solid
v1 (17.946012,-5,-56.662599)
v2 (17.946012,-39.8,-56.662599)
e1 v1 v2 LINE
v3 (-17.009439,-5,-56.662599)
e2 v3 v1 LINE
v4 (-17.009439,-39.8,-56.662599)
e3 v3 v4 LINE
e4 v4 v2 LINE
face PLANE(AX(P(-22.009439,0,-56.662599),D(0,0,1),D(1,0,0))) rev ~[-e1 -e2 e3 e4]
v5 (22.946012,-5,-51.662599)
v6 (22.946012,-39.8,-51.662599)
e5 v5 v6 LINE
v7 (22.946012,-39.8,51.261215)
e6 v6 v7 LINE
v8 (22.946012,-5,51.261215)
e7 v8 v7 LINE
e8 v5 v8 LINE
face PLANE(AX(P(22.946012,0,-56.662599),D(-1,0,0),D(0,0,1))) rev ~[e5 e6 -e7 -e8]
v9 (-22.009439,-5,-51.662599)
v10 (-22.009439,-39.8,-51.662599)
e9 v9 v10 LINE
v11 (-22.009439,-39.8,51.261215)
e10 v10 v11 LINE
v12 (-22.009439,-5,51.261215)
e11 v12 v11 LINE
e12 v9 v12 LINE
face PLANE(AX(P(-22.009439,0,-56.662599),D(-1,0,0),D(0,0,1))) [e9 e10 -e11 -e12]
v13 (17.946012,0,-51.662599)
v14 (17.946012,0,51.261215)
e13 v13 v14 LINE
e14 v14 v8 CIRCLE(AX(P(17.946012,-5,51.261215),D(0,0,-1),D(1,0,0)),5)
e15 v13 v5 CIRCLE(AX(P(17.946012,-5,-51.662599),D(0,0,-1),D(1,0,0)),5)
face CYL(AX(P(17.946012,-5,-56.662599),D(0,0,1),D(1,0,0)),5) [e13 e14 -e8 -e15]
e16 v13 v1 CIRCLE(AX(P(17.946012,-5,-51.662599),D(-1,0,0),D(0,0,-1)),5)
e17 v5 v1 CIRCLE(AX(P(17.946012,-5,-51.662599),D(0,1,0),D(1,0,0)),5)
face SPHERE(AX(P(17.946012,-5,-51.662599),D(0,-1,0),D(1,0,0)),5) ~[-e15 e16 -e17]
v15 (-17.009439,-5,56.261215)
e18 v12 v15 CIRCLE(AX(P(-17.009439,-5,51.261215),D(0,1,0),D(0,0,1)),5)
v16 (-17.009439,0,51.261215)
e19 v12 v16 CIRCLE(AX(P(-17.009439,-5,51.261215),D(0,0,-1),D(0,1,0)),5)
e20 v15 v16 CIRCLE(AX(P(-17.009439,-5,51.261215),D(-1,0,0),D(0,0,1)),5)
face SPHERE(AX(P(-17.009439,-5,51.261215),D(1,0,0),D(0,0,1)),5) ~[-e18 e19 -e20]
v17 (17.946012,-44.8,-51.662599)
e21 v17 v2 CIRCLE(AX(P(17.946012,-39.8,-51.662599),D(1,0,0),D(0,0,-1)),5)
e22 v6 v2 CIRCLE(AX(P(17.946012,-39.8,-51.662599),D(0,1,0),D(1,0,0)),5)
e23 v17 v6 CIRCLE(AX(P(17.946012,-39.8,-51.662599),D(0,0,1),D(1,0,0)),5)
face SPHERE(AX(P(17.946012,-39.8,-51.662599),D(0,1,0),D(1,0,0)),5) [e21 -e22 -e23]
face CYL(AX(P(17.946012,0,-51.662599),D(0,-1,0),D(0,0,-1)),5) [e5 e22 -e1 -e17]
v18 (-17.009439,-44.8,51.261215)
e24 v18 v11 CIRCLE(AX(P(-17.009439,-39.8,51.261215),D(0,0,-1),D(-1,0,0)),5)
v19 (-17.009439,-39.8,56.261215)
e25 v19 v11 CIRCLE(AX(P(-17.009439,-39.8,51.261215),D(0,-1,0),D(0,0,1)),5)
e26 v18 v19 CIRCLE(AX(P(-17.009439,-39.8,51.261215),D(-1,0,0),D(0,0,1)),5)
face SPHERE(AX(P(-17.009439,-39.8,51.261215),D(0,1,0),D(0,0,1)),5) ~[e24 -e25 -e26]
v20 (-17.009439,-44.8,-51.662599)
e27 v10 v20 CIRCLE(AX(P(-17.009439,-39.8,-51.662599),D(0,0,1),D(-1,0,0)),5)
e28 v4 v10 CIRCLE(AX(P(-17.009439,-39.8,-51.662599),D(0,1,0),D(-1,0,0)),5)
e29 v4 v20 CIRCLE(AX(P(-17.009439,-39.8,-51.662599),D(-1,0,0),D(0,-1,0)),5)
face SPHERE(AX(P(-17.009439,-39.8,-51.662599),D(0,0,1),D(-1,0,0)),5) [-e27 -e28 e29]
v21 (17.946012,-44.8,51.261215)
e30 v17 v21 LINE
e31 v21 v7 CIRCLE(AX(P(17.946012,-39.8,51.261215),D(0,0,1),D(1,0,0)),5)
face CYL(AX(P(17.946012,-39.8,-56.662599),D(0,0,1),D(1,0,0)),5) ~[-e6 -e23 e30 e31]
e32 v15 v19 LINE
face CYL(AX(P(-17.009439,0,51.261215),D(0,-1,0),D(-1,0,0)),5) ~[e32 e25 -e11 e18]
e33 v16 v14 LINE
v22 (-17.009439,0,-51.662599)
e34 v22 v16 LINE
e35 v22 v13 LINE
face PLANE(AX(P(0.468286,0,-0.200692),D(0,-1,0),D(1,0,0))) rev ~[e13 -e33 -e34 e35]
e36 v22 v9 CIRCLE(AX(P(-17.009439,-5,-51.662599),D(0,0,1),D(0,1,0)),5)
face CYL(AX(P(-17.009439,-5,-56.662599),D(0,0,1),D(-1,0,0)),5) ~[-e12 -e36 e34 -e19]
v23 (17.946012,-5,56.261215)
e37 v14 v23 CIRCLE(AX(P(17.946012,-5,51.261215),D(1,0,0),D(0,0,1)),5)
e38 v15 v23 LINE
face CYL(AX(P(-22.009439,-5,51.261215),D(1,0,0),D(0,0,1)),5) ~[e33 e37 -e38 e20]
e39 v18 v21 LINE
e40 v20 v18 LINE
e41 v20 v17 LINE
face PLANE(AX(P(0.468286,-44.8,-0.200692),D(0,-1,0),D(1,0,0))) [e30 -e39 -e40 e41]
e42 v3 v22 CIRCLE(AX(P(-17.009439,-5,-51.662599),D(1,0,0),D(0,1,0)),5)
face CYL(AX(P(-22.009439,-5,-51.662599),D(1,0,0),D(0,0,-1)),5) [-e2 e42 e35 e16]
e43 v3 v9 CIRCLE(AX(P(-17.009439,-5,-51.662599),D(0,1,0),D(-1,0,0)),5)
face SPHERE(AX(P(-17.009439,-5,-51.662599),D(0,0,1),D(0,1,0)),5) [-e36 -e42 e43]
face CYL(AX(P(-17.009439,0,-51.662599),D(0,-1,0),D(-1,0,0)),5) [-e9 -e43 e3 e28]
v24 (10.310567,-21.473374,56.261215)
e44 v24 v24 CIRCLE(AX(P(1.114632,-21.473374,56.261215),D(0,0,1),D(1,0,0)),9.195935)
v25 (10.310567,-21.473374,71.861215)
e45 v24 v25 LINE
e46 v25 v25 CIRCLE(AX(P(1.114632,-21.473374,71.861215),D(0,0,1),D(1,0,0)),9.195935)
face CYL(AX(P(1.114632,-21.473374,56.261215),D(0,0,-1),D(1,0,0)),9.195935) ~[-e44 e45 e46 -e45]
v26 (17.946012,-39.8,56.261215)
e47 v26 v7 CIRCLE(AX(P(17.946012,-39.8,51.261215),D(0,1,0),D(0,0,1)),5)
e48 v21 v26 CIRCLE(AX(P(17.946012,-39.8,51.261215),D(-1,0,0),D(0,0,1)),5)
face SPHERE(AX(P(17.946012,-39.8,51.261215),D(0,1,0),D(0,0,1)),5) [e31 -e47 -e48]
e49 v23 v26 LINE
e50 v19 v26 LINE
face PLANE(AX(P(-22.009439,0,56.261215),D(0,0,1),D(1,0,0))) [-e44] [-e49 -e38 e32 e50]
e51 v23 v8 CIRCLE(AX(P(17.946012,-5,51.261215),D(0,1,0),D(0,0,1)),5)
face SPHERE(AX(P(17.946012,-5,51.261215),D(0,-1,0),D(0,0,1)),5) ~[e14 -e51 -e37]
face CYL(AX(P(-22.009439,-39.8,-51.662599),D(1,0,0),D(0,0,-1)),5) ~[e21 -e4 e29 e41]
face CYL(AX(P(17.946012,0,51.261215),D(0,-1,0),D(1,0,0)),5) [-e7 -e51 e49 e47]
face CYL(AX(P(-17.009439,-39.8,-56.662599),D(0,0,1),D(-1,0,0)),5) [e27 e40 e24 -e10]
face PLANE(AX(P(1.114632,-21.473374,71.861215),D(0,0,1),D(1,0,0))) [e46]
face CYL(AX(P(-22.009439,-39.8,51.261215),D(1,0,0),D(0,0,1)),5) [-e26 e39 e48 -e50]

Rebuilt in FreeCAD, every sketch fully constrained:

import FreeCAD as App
import Part
import Sketcher

V = App.Vector

doc = App.newDocument("Part")
body = doc.addObject("PartDesign::Body", "Body")

# Sketch on XZ plane
sketch1 = body.newObject("Sketcher::SketchObject", "Sketch")
sketch1.AttachmentSupport = (doc.getObject("XZ_Plane"), [""])
sketch1.MapMode = "FlatFace"
sketch1.addGeometry(Part.LineSegment(V(-22.009439, 56.261215, 0), V(-22.009439, -56.662599, 0)), False)
sketch1.addGeometry(Part.LineSegment(V(-22.009439, -56.662599, 0), V(22.946012, -56.662599, 0)), False)
sketch1.addGeometry(Part.LineSegment(V(22.946012, -56.662599, 0), V(22.946012, 56.261215, 0)), False)
sketch1.addGeometry(Part.LineSegment(V(22.946012, 56.261215, 0), V(-22.009439, 56.261215, 0)), False)
sketch1.addConstraint(Sketcher.Constraint("Coincident", 0, 2, 1, 1))
sketch1.addConstraint(Sketcher.Constraint("Coincident", 1, 2, 2, 1))
sketch1.addConstraint(Sketcher.Constraint("Coincident", 2, 2, 3, 1))
sketch1.addConstraint(Sketcher.Constraint("Coincident", 3, 2, 0, 1))
sketch1.addConstraint(Sketcher.Constraint("Vertical", 0))
sketch1.addConstraint(Sketcher.Constraint("Horizontal", 1))
sketch1.addConstraint(Sketcher.Constraint("Vertical", 2))
sketch1.addConstraint(Sketcher.Constraint("Horizontal", 3))
sketch1.addConstraint(Sketcher.Constraint("DistanceX", 1, 1, 1, 2, 44.955451))
sketch1.addConstraint(Sketcher.Constraint("DistanceY", 0, 2, -1, 1, 56.662599))
sketch1.addConstraint(Sketcher.Constraint("DistanceY", 0, 2, 0, 1, 112.923815))
sketch1.addConstraint(Sketcher.Constraint("DistanceX", 0, 2, -1, 1, 22.009439))
pad1 = body.newObject("PartDesign::Pad", "Pad")
pad1.Profile = sketch1
pad1.Length = 44.8
doc.recompute()

fillet = body.newObject("PartDesign::Fillet", "Fillet")
fillet.Base = (pad1, ["Edge1"])
fillet.UseAllEdges = True
fillet.Radius = 5

# Sketch on XY plane
sketch2 = body.newObject("Sketcher::SketchObject", "Sketch001")
sketch2.AttachmentSupport = (doc.getObject("XY_Plane"), [""])
sketch2.MapMode = "FlatFace"
sketch2.AttachmentOffset = App.Placement(V(0, 0, 56.261215), App.Rotation())
sketch2.addGeometry(Part.Circle(V(1.114632, -21.473374, 0), V(0, 0, 1), 9.195935), False)
sketch2.addConstraint(Sketcher.Constraint("Diameter", 0, 18.39187))
sketch2.addConstraint(Sketcher.Constraint("DistanceX", -1, 1, 0, 3, 1.114632))
sketch2.addConstraint(Sketcher.Constraint("DistanceY", 0, 3, -1, 1, 21.473374))
pad2 = body.newObject("PartDesign::Pad", "Pad001")
pad2.Profile = sketch2
pad2.Length = 15.6

doc.recompute()
